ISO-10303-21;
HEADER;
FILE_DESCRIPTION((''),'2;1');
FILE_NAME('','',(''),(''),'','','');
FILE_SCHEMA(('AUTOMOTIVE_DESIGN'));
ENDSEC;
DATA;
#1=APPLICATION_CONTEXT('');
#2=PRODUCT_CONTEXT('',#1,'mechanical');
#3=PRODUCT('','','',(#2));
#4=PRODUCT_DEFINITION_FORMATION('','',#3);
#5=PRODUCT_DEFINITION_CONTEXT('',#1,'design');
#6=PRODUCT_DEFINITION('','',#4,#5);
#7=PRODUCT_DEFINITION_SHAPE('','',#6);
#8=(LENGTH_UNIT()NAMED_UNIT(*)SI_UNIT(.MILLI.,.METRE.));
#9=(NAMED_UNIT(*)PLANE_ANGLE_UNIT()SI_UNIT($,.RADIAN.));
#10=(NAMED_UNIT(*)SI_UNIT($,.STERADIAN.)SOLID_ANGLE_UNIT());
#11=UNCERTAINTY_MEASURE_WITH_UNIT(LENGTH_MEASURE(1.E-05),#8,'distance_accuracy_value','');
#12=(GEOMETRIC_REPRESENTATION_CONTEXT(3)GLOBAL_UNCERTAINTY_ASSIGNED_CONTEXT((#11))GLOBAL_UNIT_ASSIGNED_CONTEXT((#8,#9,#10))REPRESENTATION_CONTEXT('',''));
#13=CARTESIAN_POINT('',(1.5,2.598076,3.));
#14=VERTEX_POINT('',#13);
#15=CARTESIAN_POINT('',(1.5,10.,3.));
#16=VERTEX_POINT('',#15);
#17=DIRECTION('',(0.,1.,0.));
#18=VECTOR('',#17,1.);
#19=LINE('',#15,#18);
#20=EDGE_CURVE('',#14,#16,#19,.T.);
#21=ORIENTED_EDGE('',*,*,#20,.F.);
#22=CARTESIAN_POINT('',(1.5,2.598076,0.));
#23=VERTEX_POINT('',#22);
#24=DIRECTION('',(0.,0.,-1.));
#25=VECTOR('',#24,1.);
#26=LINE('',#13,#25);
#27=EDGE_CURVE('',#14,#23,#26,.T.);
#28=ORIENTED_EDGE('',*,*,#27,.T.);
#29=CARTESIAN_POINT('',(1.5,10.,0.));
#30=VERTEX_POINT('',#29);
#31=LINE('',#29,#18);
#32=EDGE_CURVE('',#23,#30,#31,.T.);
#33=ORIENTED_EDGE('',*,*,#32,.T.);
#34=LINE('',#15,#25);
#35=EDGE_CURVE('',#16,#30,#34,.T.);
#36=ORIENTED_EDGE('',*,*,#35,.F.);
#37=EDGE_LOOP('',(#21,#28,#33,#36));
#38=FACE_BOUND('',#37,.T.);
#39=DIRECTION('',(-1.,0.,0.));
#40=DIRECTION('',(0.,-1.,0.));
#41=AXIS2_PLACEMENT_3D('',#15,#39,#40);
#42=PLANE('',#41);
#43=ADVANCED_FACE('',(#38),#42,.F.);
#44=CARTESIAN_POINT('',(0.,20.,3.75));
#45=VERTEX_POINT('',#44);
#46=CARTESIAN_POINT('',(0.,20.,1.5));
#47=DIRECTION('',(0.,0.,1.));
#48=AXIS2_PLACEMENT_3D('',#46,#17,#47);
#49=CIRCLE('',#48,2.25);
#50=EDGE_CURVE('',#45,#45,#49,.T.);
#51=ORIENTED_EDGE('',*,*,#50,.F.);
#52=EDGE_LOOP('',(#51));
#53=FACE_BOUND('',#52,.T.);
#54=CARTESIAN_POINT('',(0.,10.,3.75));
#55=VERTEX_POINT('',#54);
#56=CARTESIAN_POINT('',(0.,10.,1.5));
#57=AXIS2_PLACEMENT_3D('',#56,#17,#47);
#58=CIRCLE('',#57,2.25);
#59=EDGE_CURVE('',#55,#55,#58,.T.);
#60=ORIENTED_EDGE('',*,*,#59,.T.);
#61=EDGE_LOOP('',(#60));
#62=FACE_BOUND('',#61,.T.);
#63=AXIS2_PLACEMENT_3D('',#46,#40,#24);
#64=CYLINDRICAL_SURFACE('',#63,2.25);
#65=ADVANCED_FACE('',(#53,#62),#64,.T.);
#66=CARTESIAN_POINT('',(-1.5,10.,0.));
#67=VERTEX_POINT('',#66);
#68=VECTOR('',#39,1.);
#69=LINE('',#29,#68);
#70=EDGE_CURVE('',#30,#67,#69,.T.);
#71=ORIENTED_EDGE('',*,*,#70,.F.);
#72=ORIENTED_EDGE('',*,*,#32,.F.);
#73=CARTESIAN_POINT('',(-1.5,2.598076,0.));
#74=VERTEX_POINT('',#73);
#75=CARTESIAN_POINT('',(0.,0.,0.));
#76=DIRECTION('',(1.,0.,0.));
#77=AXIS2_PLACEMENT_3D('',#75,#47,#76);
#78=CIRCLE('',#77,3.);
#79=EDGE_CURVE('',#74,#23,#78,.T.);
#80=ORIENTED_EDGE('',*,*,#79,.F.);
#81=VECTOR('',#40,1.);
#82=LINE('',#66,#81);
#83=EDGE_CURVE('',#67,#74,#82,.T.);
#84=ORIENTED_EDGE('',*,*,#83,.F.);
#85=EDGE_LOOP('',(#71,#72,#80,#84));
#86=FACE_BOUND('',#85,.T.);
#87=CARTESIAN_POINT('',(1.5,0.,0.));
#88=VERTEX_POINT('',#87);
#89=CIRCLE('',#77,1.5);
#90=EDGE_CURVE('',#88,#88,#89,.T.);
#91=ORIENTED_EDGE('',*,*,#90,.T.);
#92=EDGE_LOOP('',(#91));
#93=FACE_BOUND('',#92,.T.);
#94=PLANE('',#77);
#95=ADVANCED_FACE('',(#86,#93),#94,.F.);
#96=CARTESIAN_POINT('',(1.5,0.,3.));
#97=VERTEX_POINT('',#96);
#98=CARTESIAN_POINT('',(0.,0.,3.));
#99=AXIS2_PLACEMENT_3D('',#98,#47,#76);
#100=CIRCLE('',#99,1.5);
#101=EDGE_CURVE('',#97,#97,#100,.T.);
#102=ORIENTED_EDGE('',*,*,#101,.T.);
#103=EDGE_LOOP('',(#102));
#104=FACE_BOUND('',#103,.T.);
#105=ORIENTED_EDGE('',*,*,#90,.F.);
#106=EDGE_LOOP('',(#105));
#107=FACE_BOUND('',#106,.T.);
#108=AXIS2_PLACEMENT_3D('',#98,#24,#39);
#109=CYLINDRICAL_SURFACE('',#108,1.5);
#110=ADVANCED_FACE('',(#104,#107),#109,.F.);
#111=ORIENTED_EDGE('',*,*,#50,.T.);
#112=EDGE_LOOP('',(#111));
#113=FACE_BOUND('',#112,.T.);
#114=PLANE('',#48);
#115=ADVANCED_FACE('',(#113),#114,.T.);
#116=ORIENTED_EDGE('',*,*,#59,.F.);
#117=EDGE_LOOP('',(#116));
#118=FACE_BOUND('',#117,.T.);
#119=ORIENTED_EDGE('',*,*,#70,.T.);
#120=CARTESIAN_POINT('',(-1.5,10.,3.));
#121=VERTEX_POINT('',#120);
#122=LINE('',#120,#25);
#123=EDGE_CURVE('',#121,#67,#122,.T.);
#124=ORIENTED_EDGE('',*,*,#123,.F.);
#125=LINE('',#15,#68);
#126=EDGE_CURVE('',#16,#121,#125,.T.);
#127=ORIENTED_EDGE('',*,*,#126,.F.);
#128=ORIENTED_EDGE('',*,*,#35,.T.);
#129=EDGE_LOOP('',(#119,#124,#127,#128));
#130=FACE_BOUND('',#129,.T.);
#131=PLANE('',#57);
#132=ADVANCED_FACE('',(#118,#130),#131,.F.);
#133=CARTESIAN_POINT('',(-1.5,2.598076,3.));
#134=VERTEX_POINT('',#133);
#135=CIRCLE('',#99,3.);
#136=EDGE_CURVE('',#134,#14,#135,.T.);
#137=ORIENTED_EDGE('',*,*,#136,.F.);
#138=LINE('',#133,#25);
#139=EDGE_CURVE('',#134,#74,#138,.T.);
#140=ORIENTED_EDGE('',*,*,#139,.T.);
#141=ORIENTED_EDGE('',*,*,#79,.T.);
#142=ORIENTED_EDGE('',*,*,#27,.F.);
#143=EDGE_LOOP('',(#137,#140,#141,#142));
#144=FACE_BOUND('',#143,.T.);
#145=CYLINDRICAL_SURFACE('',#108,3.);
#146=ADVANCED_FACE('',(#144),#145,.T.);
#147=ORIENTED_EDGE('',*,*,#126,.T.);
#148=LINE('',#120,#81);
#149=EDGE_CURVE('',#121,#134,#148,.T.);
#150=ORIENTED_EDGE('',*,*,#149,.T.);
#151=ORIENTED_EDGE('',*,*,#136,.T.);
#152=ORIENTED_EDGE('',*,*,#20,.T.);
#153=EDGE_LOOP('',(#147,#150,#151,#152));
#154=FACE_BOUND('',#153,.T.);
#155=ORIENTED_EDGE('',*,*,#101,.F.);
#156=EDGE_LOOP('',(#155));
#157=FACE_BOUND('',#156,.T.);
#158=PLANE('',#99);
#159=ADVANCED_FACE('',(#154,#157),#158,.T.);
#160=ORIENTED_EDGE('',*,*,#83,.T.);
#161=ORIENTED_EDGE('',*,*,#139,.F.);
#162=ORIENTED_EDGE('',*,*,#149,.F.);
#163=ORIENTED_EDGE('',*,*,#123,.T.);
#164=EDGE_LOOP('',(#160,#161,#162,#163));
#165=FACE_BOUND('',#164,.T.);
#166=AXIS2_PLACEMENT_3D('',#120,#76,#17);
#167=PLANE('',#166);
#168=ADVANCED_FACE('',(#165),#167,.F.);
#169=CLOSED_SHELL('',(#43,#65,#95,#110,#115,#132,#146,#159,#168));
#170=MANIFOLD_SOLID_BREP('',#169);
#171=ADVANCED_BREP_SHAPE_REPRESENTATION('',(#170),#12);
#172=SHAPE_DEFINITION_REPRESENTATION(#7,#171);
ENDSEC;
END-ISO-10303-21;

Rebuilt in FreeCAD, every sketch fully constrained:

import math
import FreeCAD as App
import Part
import Sketcher

doc = App.newDocument("Part")
body = doc.addObject("PartDesign::Body", "Body")

sketch1 = doc.addObject("Sketcher::SketchObject", "Sketch")
body.addObject(sketch1)
sketch1.AttachmentSupport = (doc.XY_Plane, [""])
sketch1.MapMode = "FlatFace"
sketch1.addGeometry(Part.LineSegment(App.Vector(1.5, 10, 0), App.Vector(-1.5, 10, 0)), False)
sketch1.addGeometry(Part.LineSegment(App.Vector(-1.5, 10, 0), App.Vector(-1.5, 2.6, 0)), False)
sketch1.addGeometry(Part.ArcOfCircle(Part.Circle(App.Vector(0, 0, 0), App.Vector(0, 0, 1), 3), math.radians(120), math.radians(420)), False)
sketch1.addGeometry(Part.LineSegment(App.Vector(1.5, 2.6, 0), App.Vector(1.5, 10, 0)), False)
sketch1.addGeometry(Part.Circle(App.Vector(0, 0, 0), App.Vector(0, 0, 1), 1.5), False)
sketch1.addConstraint(Sketcher.Constraint("Coincident", 0, 2, 1, 1))
sketch1.addConstraint(Sketcher.Constraint("Coincident", 1, 2, 2, 1))
sketch1.addConstraint(Sketcher.Constraint("Coincident", 2, 2, 3, 1))
sketch1.addConstraint(Sketcher.Constraint("Coincident", 3, 2, 0, 1))
sketch1.addConstraint(Sketcher.Constraint("Horizontal", 0))
sketch1.addConstraint(Sketcher.Constraint("Vertical", 1))
sketch1.addConstraint(Sketcher.Constraint("Vertical", 3))
sketch1.addConstraint(Sketcher.Constraint("Coincident", 2, 3, -1, 1))
sketch1.addConstraint(Sketcher.Constraint("Coincident", 4, 3, -1, 1))
sketch1.addConstraint(Sketcher.Constraint("Horizontal", 1, 2, 2, 2))
sketch1.addConstraint(Sketcher.Constraint("Diameter", 4, 3.0))
sketch1.addConstraint(Sketcher.Constraint("Radius", 2, 3.0))
sketch1.addConstraint(Sketcher.Constraint("DistanceX", 0, 2, 0, 1, 3.0))
sketch1.addConstraint(Sketcher.Constraint("DistanceY", -1, 1, 0, 2, 10.0))
pad1 = doc.addObject("PartDesign::Pad", "Pad")
body.addObject(pad1)
pad1.Profile = sketch1
pad1.Length = 3

sketch2 = doc.addObject("Sketcher::SketchObject", "Sketch001")
body.addObject(sketch2)
sketch2.AttachmentSupport = (doc.XZ_Plane, [""])
sketch2.MapMode = "FlatFace"
sketch2.AttachmentOffset = App.Placement(App.Vector(0, 0, -10), App.Rotation())
sketch2.addGeometry(Part.Circle(App.Vector(0, 1.5, 0), App.Vector(0, 0, 1), 2.2), False)
sketch2.addConstraint(Sketcher.Constraint("PointOnObject", 0, 3, -2))
sketch2.addConstraint(Sketcher.Constraint("Diameter", 0, 4.5))
sketch2.addConstraint(Sketcher.Constraint("DistanceY", -1, 1, 0, 3, 1.5))
pad2 = doc.addObject("PartDesign::Pad", "Pad001")
body.addObject(pad2)
pad2.Profile = sketch2
pad2.Length = 10
pad2.Reversed = True

doc.recompute()
